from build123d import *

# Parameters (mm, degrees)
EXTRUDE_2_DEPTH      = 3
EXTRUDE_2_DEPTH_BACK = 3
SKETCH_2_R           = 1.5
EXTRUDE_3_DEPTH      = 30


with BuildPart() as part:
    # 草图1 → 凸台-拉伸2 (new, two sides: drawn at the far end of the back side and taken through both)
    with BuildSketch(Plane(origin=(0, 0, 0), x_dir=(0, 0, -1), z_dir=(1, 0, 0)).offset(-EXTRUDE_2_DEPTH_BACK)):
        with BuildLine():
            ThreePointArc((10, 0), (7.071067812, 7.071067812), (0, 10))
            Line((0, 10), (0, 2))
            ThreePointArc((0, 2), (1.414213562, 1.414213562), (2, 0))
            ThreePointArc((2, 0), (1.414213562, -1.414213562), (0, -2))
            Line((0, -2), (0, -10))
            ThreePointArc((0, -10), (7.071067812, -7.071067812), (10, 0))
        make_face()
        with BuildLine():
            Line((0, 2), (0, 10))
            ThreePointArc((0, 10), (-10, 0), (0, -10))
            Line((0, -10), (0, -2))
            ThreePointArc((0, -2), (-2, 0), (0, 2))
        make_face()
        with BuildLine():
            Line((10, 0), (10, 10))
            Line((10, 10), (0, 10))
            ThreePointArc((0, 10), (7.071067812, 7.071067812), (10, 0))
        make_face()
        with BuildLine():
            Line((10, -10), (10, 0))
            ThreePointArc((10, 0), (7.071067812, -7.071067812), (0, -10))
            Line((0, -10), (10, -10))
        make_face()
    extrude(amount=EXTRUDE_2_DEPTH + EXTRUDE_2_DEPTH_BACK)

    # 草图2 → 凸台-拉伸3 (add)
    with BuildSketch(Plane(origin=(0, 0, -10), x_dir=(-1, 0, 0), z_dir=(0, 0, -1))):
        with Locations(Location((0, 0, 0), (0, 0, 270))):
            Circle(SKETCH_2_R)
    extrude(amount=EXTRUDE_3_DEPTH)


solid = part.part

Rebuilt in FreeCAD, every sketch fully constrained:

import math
import FreeCAD as App
import Part
import Sketcher
from FreeCAD import Vector

doc = App.newDocument("Part")
params = doc.addObject("Spreadsheet::Sheet", "Params")
for row, (alias, value) in enumerate([
    ("sketch1_radius", "10 mm"),
    ("sketch1_radius2", "2 mm"),
    ("sketch1_height", "10 mm"),
    ("pad1_length", "3 mm"),
    ("pad1_length2", "3 mm"),
    ("sketch2_diameter", "3 mm"),
    ("pad2_length", "30 mm"),
], start=1):
    params.set(f"A{row}", alias)
    params.set(f"B{row}", "=" + value)
    params.setAlias(f"B{row}", alias)

body = doc.addObject("PartDesign::Body", "Body")

sketch1 = body.newObject("Sketcher::SketchObject", "Sketch")
sketch1.AttachmentSupport = (doc.getObject("YZ_Plane"), [""])
sketch1.MapMode = "FlatFace"
sketch1.addGeometry(Part.ArcOfCircle(Part.Circle(Vector(0, 0, 0), Vector(0, 0, 1), 10), math.radians(0), math.radians(180)), False)
sketch1.addGeometry(Part.LineSegment(Vector(-10, 0, 0), Vector(-10, -10, 0)), False)
sketch1.addGeometry(Part.LineSegment(Vector(-10, -10, 0), Vector(10, -10, 0)), False)
sketch1.addGeometry(Part.LineSegment(Vector(10, -10, 0), Vector(10, 0, 0)), False)
sketch1.addGeometry(Part.ArcOfCircle(Part.Circle(Vector(0, 0, 0), Vector(0, 0, 1), 2), math.radians(-180), math.radians(-90)), False)
sketch1.addGeometry(Part.ArcOfCircle(Part.Circle(Vector(0, 0, 0), Vector(0, 0, 1), 2), math.radians(0), math.radians(180)), False)
sketch1.addGeometry(Part.ArcOfCircle(Part.Circle(Vector(0, 0, 0), Vector(0, 0, 1), 2), math.radians(-90), math.radians(0)), False)
sketch1.addConstraint(Sketcher.Constraint("Tangent", 0, 2, 1, 1))
sketch1.addConstraint(Sketcher.Constraint("Coincident", 1, 2, 2, 1))
sketch1.addConstraint(Sketcher.Constraint("Coincident", 2, 2, 3, 1))
sketch1.addConstraint(Sketcher.Constraint("Tangent", 3, 2, 0, 1))
sketch1.addConstraint(Sketcher.Constraint("Tangent", 4, 1, 5, 2))
sketch1.addConstraint(Sketcher.Constraint("Tangent", 5, 1, 6, 2))
sketch1.addConstraint(Sketcher.Constraint("Tangent", 6, 1, 4, 2))
sketch1.addConstraint(Sketcher.Constraint("Vertical", 1))
sketch1.addConstraint(Sketcher.Constraint("Horizontal", 2))
sketch1.addConstraint(Sketcher.Constraint("Vertical", 3))
sketch1.addConstraint(Sketcher.Constraint("Coincident", 0, 3, -1, 1))
sketch1.addConstraint(Sketcher.Constraint("Coincident", 4, 3, -1, 1))
sketch1.addConstraint(Sketcher.Constraint("PointOnObject", 4, 1, -1))
sketch1.addConstraint(Sketcher.Constraint("PointOnObject", 5, 1, -1))
sketch1.addConstraint(Sketcher.Constraint("PointOnObject", 6, 1, -2))
sketch1.addConstraint(Sketcher.Constraint("Radius", 0, 10.0))
sketch1.addConstraint(Sketcher.Constraint("Radius", 4, 2.0))
sketch1.addConstraint(Sketcher.Constraint("DistanceY", 1, 2, 1, 1, 10.0))
sketch1.setExpression("Constraints[15]", "Params.sketch1_radius")
sketch1.setExpression("Constraints[16]", "Params.sketch1_radius2")
sketch1.setExpression("Constraints[17]", "Params.sketch1_height")
pad1 = body.newObject("PartDesign::Pad", "Pad")
pad1.Profile = sketch1
pad1.Type = "TwoLengths"
pad1.setExpression("Length", "Params.pad1_length")
pad1.setExpression("Length2", "Params.pad1_length2")

sketch2 = body.newObject("Sketcher::SketchObject", "Sketch001")
sketch2.AttachmentSupport = (doc.getObject("XY_Plane"), [""])
sketch2.MapMode = "FlatFace"
sketch2.AttachmentOffset = App.Placement(Vector(0, 0, -10), App.Rotation())
sketch2.addGeometry(Part.Circle(Vector(0, 0, 0), Vector(0, 0, 1), 1.5), False)
sketch2.addConstraint(Sketcher.Constraint("Coincident", 0, 3, -1, 1))
sketch2.addConstraint(Sketcher.Constraint("Diameter", 0, 3.0))
sketch2.setExpression("Constraints[1]", "Params.sketch2_diameter")
pad2 = body.newObject("PartDesign::Pad", "Pad001")
pad2.Profile = sketch2
pad2.setExpression("Length", "Params.pad2_length")
pad2.Reversed = True

doc.recompute()
